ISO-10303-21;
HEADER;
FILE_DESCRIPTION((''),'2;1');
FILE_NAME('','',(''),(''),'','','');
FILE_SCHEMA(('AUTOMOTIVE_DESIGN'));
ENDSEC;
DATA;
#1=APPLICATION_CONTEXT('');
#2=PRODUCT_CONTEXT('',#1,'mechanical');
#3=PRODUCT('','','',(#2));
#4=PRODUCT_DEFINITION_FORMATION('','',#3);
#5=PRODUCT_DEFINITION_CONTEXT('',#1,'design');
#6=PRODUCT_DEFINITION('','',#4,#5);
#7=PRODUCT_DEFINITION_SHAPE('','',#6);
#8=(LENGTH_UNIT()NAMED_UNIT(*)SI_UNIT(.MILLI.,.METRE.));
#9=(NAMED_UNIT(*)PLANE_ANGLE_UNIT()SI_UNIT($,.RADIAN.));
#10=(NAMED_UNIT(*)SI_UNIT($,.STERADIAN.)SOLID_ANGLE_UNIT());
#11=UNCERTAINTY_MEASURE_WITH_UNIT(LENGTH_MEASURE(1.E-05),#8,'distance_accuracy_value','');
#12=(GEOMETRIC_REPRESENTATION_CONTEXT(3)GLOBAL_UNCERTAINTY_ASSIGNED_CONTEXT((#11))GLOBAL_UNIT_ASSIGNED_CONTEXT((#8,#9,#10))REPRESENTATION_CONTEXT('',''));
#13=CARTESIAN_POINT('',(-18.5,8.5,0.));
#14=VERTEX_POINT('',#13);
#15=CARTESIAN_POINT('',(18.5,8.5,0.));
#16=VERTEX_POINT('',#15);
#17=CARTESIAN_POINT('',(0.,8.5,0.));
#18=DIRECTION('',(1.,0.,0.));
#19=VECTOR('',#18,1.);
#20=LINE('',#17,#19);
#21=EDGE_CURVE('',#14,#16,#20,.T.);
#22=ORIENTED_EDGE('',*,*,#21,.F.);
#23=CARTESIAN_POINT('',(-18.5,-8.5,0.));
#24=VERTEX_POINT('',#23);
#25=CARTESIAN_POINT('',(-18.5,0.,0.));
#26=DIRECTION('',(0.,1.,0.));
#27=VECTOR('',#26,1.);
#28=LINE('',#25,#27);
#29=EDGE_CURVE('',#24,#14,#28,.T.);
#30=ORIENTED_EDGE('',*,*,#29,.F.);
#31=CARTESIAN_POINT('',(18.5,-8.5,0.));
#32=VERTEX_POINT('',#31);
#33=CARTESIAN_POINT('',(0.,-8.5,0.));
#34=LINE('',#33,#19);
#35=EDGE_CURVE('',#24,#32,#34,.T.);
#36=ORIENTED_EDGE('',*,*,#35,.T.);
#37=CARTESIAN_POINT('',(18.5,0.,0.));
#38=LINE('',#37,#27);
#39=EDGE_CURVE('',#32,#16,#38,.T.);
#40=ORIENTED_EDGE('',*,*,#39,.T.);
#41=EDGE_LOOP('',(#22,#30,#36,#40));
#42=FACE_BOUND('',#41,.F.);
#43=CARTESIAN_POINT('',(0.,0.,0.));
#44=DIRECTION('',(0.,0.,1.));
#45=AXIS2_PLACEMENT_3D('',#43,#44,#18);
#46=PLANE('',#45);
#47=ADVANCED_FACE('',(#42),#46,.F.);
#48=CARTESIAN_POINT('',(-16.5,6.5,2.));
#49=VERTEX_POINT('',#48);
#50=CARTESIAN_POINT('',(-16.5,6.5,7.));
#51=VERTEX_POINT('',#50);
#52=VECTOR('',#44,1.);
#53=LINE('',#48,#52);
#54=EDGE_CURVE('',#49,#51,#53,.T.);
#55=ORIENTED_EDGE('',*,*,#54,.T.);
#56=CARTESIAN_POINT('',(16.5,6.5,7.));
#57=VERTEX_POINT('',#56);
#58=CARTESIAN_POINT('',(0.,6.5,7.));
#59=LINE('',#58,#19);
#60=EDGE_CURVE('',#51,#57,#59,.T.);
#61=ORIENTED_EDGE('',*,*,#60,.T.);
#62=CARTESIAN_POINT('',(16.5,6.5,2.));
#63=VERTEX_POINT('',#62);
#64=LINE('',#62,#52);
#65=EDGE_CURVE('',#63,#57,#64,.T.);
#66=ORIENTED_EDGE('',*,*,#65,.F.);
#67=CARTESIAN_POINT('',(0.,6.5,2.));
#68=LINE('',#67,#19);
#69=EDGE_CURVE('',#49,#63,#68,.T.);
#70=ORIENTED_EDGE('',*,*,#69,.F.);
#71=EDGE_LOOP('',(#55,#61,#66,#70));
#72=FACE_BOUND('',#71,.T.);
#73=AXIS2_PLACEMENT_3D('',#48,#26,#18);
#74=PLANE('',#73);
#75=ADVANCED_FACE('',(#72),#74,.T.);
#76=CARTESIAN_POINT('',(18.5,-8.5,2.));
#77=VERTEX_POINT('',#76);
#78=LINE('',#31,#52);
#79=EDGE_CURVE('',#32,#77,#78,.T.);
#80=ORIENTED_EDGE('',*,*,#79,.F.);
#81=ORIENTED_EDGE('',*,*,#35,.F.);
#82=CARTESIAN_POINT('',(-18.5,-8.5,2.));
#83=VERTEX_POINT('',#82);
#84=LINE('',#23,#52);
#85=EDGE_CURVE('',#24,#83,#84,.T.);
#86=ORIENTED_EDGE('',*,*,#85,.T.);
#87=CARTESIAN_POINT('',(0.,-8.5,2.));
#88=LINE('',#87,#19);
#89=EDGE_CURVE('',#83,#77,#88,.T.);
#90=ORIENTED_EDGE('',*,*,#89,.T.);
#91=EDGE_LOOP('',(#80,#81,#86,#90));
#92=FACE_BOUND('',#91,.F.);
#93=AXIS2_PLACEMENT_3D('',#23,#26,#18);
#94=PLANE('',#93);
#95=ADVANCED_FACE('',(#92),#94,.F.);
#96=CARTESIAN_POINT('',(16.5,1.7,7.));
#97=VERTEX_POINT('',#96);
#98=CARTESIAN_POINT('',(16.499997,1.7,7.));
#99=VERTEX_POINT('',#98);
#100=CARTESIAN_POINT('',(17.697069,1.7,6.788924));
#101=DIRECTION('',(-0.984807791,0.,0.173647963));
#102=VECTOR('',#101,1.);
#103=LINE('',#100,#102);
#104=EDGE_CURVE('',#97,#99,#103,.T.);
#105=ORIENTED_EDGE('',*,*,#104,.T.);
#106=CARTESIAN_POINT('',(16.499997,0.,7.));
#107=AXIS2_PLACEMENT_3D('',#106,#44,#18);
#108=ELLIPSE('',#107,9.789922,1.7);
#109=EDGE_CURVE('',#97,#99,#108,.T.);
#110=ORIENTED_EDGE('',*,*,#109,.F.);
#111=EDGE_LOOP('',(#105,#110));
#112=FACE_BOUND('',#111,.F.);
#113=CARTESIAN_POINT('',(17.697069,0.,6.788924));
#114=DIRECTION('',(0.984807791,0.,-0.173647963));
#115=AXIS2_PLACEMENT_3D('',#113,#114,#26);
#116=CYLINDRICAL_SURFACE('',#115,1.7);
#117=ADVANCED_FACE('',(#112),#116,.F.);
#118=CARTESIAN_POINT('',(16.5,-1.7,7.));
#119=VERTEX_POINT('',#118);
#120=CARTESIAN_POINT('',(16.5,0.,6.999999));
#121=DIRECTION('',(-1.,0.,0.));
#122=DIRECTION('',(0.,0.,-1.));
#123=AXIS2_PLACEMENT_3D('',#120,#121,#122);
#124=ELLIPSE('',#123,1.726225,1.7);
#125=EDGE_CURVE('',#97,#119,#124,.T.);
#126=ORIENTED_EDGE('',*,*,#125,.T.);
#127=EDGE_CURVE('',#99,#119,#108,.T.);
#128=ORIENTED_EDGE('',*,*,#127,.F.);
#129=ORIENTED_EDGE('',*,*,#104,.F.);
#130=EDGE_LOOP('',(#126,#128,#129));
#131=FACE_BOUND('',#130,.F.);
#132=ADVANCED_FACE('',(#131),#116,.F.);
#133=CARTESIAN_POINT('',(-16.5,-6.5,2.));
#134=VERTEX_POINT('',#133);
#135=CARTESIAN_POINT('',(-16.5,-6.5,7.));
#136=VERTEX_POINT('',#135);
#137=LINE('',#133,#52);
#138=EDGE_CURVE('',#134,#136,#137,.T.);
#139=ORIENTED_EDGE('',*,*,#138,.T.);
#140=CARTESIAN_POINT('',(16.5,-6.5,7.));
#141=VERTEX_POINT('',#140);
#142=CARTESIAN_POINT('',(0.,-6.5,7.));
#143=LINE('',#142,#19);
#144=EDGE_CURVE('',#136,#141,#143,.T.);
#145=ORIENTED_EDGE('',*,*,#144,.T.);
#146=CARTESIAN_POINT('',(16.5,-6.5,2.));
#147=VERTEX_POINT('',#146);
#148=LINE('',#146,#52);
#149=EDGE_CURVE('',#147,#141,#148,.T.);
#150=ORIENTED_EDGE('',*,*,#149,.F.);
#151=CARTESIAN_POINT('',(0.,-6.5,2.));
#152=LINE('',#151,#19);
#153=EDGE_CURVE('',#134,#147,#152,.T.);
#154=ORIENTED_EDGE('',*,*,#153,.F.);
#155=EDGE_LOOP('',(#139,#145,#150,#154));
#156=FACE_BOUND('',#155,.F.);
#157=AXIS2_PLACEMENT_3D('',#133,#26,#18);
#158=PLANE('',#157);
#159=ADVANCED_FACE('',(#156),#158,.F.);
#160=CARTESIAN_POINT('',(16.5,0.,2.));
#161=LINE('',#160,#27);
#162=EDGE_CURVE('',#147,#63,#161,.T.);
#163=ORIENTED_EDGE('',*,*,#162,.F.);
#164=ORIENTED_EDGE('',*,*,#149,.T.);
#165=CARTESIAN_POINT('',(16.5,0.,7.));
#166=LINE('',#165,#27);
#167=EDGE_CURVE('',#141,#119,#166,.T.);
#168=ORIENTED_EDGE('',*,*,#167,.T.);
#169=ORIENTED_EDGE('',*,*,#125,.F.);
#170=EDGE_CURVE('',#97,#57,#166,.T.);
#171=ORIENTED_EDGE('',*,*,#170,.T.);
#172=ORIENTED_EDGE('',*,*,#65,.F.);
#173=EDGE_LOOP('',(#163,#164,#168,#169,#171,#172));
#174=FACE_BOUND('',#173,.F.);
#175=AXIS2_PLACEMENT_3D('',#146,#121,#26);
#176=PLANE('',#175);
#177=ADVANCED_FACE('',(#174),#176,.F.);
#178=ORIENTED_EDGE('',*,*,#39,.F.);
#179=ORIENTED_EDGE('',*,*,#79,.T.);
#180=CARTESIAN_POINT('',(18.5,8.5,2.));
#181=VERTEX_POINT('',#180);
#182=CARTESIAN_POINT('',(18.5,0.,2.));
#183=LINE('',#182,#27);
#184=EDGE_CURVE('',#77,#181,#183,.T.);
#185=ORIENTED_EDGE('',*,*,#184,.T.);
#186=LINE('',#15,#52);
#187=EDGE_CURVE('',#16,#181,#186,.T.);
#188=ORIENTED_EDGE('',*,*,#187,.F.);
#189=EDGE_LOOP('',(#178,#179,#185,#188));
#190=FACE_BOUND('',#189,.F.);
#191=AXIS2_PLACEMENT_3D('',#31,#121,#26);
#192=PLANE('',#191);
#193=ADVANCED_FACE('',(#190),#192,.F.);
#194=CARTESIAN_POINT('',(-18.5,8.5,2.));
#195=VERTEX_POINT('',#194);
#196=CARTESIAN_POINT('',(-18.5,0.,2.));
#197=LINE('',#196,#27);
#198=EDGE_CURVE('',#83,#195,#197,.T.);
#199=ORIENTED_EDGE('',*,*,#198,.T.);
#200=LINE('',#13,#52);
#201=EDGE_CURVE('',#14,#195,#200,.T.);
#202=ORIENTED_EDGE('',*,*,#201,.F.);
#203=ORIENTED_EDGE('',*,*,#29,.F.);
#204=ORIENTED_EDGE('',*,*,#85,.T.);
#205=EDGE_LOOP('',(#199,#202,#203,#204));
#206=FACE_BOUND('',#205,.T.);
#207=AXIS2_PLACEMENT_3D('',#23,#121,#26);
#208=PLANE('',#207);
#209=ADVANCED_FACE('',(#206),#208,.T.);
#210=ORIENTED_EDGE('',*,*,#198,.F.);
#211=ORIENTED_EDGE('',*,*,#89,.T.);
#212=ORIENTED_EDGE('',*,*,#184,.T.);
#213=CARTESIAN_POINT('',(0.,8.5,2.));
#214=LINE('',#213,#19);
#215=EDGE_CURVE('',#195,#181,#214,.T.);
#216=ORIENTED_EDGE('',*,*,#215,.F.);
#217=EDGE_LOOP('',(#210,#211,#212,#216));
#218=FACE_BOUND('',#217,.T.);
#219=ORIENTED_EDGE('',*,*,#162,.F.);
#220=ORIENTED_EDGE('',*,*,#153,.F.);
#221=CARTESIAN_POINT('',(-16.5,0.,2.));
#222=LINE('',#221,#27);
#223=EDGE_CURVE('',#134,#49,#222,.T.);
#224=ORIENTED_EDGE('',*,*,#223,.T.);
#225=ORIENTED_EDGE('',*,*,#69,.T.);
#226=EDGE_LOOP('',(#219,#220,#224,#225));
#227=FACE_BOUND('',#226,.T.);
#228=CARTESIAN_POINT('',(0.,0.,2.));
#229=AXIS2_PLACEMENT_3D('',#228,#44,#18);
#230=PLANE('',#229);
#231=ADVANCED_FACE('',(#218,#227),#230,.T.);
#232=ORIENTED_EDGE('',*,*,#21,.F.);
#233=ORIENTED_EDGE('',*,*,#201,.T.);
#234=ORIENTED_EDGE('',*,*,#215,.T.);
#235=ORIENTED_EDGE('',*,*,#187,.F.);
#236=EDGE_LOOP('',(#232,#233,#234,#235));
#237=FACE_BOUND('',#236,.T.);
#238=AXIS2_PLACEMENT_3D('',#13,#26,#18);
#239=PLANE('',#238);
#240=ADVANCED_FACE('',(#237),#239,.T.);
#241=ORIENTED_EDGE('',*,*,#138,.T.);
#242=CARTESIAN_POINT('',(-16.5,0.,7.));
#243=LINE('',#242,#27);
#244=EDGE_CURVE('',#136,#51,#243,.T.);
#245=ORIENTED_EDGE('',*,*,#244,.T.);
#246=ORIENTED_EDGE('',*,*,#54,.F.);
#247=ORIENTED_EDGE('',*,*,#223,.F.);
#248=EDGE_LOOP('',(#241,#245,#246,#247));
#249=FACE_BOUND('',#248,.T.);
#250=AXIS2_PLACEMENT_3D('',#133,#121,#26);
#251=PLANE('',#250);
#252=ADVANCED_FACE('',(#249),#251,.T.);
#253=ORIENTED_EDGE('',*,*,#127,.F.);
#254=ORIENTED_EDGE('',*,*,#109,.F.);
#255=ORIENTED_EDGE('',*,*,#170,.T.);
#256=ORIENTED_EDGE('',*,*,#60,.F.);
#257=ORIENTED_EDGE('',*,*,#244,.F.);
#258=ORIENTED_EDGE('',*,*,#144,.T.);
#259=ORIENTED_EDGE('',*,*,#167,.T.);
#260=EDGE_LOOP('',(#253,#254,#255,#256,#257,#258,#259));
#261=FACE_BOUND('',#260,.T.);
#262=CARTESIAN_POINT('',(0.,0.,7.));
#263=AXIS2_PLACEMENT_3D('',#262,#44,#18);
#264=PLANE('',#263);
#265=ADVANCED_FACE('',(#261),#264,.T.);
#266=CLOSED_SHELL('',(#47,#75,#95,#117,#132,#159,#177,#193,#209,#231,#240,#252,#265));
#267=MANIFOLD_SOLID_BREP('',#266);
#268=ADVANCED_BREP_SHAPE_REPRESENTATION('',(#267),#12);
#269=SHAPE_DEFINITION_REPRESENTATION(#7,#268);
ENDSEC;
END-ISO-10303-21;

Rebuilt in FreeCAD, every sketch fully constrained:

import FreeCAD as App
import Part
import Sketcher
from FreeCAD import Vector
Q = App.Units.Quantity


def add_polygon(sketch, points):
    """Adds a closed chain of lines whose ends are joined by coincident constraints."""
    first, n = sketch.GeometryCount, len(points)
    for a, b in zip(points, points[1:] + points[:1]):
        sketch.addGeometry(Part.LineSegment(App.Vector(*a, 0), App.Vector(*b, 0)), False)
    for i in range(n):
        sketch.addConstraint(Sketcher.Constraint("Coincident", first + i, 2, first + (i + 1) % n, 1))

doc = App.newDocument("Part")
params = doc.addObject("Spreadsheet::Sheet", "Params")
for row, (alias, value) in enumerate([
    ("sketch1_width", "37 mm"),
    ("sketch1_height", "17 mm"),
    ("pad1_length", "2 mm"),
    ("sketch2_width", "33 mm"),
    ("sketch2_height", "13 mm"),
    ("pad2_length", "5 mm"),
    ("sketch3_diameter", "3.4 mm"),
    ("pocket1_length", "115 mm"),
], start=1):
    params.set(f"A{row}", alias)
    params.set(f"B{row}", "=" + value)
    params.setAlias(f"B{row}", alias)

body = doc.addObject("PartDesign::Body", "Body")

# Sketch on XY plane
sketch1 = doc.addObject("Sketcher::SketchObject", "Sketch")
body.addObject(sketch1)
sketch1.AttachmentSupport = (doc.XY_Plane, [""])
sketch1.MapMode = "FlatFace"
add_polygon(sketch1, [(-18, 8), (-18, -8), (18, -8), (18, 8)])  # lines 0-3
sketch1.addConstraint([
    Sketcher.Constraint("Vertical", 0),
    Sketcher.Constraint("Horizontal", 1),
    Sketcher.Constraint("Vertical", 2),
    Sketcher.Constraint("Horizontal", 3),
    Sketcher.Constraint("Symmetric", 0, 2, 2, 2, -1, 1),
    Sketcher.Constraint("DistanceX", 1, 1, 1, 2, Q("37 mm")),
    Sketcher.Constraint("DistanceY", 0, 2, 0, 1, Q("17 mm")),
])
sketch1.setExpression("Constraints[9]", "Params.sketch1_width")
sketch1.setExpression("Constraints[10]", "Params.sketch1_height")
pad1 = doc.addObject("PartDesign::Pad", "Pad")
body.addObject(pad1)
pad1.Profile = sketch1
pad1.setExpression("Length", "Params.pad1_length")

# Sketch on XY plane
sketch2 = doc.addObject("Sketcher::SketchObject", "Sketch001")
body.addObject(sketch2)
sketch2.AttachmentSupport = (doc.XY_Plane, [""])
sketch2.MapMode = "FlatFace"
sketch2.AttachmentOffset = App.Placement(Vector(0, 0, 2), App.Rotation())
add_polygon(sketch2, [(-16, 6), (-16, -6), (16, -6), (16, 6)])  # lines 0-3
sketch2.addConstraint([
    Sketcher.Constraint("Vertical", 0),
    Sketcher.Constraint("Horizontal", 1),
    Sketcher.Constraint("Vertical", 2),
    Sketcher.Constraint("Horizontal", 3),
    Sketcher.Constraint("Symmetric", 0, 2, 2, 2, -1, 1),
    Sketcher.Constraint("DistanceX", 1, 1, 1, 2, Q("33 mm")),
    Sketcher.Constraint("DistanceY", 0, 2, 0, 1, Q("13 mm")),
])
sketch2.setExpression("Constraints[9]", "Params.sketch2_width")
sketch2.setExpression("Constraints[10]", "Params.sketch2_height")
pad2 = doc.addObject("PartDesign::Pad", "Pad001")
body.addObject(pad2)
pad2.Profile = sketch2
pad2.setExpression("Length", "Params.pad2_length")

# Sketch on an angled plane
sketch3 = doc.addObject("Sketcher::SketchObject", "Sketch002")
body.addObject(sketch3)
sketch3.Placement = App.Placement(Vector(16.5, 0, 0), App.Rotation(Vector(0, 1, 0), Vector(0.173647963, 0, 0.984807791), Vector(0.984807791, 0, -0.173647963), "ZXY"))
sketch3.addGeometry(Part.Circle(Vector(0, 6.9, 0), Vector(0, 0, 1), 1.7), False)
sketch3.addConstraint([
    Sketcher.Constraint("PointOnObject", 0, 3, -2),
    Sketcher.Constraint("Diameter", 0, Q("3.4 mm")),
    Sketcher.Constraint("DistanceY", -1, 1, 0, 3, Q("6.893654 mm")),
])
sketch3.setExpression("Constraints[1]", "Params.sketch3_diameter")
pocket1 = doc.addObject("PartDesign::Pocket", "Pocket")
body.addObject(pocket1)
pocket1.Profile = sketch3
pocket1.setExpression("Length", "Params.pocket1_length")

doc.recompute()
